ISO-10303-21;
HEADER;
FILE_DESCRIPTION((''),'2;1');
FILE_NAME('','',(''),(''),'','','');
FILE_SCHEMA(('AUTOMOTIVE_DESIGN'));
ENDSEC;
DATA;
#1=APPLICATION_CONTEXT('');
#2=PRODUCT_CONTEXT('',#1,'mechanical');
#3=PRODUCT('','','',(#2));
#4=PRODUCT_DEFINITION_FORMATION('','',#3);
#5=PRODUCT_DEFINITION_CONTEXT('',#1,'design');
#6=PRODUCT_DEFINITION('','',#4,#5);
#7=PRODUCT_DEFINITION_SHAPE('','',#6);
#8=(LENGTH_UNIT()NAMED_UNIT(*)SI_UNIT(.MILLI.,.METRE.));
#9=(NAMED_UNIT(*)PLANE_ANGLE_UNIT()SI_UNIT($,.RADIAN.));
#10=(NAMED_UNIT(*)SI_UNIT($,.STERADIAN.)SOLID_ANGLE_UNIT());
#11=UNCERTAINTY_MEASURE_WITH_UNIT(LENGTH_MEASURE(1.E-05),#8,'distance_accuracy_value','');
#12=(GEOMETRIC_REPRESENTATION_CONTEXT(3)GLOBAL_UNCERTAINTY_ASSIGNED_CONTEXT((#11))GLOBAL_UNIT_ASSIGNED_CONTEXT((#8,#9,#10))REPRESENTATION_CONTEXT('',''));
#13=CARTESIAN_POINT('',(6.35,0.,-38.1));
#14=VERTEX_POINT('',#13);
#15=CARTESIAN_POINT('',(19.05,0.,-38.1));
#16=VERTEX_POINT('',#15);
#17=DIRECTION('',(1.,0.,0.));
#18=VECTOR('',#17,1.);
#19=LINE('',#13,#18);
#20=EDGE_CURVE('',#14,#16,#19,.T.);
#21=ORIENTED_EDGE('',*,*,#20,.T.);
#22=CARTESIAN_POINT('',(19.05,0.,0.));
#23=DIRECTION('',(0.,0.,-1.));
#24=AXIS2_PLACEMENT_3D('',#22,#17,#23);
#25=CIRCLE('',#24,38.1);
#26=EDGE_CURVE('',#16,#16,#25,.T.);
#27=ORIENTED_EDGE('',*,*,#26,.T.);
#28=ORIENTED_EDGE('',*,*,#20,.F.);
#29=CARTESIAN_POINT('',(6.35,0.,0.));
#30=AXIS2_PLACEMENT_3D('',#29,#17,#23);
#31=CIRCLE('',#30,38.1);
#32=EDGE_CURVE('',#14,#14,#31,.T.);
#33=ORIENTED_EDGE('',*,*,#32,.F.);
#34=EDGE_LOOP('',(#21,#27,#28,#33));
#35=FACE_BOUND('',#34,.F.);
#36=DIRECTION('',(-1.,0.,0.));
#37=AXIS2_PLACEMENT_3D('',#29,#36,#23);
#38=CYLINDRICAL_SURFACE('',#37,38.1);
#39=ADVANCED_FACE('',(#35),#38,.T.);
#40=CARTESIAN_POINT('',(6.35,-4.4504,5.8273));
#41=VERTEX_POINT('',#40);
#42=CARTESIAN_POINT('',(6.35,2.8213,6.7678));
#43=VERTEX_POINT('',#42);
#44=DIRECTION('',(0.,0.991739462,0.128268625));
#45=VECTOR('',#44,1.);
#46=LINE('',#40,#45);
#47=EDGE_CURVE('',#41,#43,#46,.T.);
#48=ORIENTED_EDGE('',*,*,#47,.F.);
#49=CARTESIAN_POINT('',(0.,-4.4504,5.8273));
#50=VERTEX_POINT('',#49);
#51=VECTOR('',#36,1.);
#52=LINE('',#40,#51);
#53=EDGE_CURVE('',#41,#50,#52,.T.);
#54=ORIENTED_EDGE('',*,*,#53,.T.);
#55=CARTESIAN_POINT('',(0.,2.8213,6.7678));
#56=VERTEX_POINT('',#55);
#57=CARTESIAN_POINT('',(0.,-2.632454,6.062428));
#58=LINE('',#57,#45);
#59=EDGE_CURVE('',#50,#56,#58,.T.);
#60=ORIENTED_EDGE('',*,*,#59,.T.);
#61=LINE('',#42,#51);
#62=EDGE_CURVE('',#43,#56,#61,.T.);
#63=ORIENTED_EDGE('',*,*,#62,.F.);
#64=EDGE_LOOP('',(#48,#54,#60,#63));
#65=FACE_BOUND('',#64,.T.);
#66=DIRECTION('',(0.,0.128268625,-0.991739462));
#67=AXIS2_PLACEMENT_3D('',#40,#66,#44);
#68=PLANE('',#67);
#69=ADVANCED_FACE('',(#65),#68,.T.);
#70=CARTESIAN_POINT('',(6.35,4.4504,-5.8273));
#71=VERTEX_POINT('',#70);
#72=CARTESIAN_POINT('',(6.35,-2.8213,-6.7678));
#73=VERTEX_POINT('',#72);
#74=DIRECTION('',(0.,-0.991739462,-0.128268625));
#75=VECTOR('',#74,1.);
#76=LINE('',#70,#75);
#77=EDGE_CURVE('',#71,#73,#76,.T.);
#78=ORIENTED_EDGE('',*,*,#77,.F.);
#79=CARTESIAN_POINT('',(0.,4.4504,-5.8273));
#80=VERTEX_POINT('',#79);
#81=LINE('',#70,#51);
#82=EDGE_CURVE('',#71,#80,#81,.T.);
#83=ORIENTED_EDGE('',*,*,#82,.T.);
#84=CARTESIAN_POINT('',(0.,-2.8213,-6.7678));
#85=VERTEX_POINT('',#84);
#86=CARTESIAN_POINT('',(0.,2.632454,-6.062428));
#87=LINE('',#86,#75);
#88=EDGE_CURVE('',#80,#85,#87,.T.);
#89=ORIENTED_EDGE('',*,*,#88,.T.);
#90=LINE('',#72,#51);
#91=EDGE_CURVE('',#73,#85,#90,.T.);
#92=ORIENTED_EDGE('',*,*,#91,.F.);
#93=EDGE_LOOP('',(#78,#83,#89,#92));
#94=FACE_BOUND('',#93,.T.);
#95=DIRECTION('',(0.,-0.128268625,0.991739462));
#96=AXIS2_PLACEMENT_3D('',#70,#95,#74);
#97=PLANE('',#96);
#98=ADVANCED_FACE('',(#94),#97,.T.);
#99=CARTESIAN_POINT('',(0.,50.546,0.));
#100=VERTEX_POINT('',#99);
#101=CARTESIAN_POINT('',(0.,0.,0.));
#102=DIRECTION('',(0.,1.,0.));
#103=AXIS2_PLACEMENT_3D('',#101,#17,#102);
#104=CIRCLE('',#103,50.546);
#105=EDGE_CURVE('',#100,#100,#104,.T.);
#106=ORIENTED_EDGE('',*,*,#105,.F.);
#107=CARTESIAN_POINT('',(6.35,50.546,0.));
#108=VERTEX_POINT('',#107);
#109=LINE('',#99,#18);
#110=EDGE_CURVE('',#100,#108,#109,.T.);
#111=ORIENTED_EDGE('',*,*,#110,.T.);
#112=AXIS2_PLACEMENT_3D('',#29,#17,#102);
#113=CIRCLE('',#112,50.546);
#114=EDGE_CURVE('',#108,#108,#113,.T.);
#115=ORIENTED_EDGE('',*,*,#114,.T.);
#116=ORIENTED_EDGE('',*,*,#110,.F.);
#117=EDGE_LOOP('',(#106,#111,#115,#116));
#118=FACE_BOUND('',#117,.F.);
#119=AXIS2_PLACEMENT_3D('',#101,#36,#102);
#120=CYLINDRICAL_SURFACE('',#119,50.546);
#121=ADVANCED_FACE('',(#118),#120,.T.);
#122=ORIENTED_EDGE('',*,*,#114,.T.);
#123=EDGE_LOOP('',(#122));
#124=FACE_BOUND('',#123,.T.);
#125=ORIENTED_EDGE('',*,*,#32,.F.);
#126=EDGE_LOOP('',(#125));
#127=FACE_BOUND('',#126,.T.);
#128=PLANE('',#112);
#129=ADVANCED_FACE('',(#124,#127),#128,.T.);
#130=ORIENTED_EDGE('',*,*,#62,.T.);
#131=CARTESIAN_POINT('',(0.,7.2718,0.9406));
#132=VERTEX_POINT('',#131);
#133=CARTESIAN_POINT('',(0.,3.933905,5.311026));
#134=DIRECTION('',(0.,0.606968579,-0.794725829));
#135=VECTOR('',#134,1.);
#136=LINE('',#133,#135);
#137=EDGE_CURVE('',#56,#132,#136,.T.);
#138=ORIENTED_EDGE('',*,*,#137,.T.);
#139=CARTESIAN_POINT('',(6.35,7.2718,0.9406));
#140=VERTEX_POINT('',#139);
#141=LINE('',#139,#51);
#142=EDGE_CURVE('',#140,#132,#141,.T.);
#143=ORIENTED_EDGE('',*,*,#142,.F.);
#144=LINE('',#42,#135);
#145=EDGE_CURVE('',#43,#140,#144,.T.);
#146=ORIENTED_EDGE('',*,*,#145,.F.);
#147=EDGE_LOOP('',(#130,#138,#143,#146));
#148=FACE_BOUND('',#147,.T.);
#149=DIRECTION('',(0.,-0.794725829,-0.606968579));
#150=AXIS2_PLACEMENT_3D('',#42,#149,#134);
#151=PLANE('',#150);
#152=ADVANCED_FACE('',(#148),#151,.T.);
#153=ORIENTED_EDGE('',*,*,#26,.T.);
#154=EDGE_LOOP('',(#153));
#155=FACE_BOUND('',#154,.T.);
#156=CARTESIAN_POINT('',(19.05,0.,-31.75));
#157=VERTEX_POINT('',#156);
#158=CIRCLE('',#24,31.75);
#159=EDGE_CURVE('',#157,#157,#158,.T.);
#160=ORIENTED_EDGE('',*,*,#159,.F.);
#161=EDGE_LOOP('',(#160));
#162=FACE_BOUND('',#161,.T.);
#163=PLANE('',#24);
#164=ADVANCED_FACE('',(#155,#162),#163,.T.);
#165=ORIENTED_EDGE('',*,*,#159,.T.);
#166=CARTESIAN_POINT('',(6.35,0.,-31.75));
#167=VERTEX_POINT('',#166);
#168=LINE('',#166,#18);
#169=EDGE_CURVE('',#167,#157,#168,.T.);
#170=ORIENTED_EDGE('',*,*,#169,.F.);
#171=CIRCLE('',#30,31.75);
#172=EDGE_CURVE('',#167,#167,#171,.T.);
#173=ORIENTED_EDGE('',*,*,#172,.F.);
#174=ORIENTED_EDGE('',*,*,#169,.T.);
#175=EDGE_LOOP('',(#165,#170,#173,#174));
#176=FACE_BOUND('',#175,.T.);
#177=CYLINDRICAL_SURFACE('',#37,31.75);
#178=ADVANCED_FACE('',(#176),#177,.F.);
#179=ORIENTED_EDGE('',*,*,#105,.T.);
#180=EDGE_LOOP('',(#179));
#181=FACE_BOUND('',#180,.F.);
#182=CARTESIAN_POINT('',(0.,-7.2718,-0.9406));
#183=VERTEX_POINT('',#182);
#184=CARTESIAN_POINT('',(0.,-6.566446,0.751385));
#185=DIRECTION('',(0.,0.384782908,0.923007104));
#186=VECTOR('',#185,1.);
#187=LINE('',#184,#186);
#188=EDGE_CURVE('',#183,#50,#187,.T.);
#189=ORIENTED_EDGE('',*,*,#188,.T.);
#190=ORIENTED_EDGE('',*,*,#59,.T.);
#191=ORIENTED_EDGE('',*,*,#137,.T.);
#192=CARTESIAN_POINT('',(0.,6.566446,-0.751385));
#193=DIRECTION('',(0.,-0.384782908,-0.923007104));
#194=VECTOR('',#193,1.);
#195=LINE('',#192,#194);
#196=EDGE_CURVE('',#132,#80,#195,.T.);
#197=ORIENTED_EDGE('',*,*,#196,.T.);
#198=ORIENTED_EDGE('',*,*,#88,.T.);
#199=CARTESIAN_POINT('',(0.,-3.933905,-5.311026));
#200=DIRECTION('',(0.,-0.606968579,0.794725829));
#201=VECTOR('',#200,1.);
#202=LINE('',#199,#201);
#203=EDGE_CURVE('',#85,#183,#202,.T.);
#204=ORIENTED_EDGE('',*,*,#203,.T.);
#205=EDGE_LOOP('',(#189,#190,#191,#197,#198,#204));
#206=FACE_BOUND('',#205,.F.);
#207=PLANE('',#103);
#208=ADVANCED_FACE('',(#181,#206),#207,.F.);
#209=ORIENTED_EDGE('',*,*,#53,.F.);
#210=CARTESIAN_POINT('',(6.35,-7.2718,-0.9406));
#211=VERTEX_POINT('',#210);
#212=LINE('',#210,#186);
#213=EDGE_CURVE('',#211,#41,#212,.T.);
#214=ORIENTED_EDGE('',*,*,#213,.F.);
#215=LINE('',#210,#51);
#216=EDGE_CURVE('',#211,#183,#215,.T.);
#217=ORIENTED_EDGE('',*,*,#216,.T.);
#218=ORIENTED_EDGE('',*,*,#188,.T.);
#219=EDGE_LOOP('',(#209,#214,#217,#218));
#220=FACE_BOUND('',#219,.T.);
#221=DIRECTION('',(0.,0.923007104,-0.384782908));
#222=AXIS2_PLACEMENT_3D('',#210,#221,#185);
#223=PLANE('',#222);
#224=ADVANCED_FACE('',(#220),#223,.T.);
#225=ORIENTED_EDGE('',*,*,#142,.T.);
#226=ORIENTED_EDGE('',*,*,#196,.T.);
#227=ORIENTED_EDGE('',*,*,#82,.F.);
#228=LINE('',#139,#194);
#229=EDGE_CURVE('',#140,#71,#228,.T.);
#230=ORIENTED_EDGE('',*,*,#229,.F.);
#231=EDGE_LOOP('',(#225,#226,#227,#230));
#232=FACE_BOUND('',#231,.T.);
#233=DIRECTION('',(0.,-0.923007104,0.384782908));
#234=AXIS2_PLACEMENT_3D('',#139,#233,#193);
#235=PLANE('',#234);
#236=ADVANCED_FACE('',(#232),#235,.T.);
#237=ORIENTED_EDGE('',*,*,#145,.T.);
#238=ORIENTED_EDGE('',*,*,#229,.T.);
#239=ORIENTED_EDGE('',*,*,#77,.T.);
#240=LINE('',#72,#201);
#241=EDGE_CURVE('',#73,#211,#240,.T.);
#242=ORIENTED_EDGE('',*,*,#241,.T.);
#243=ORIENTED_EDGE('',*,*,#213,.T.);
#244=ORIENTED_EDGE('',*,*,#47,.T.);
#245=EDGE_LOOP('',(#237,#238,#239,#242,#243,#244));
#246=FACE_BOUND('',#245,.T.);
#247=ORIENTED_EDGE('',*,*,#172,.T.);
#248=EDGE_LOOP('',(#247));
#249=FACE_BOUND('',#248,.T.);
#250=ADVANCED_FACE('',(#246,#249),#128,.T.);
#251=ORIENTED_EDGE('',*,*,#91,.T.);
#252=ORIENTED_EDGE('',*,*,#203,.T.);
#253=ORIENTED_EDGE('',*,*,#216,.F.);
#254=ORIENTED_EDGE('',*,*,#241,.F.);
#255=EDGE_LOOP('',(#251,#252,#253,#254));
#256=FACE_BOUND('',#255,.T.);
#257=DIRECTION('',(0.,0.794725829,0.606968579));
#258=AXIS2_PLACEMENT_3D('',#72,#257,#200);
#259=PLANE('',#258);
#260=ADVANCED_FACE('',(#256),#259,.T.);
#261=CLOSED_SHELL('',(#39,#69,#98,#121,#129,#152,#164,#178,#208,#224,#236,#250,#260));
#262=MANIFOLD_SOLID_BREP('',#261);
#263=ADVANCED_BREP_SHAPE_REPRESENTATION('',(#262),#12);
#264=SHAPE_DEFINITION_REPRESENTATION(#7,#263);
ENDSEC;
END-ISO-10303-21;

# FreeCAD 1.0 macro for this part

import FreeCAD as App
import Part
import Sketcher

V = App.Vector
Q = App.Units.Quantity

doc = App.newDocument("Part")
body = doc.addObject("PartDesign::Body", "Body")

# Sketch on YZ plane
sketch1 = body.newObject("Sketcher::SketchObject", "Sketch")
sketch1.AttachmentSupport = (doc.getObject("YZ_Plane"), [""])
sketch1.MapMode = "FlatFace"
sketch1.addGeometry(Part.Circle(V(0, 0, 0), V(0, 0, 1), 51), False)
sketch1.addConstraint([
    Sketcher.Constraint("Coincident", 0, 3, -1, 1),
    Sketcher.Constraint("Diameter", 0, Q("3.98 in")),
])
pad1 = body.newObject("PartDesign::Pad", "Pad")
pad1.Profile = sketch1
pad1.Length = Q("0.25 in")

# Sketch on YZ plane
sketch2 = body.newObject("Sketcher::SketchObject", "Sketch001")
sketch2.AttachmentSupport = (doc.getObject("YZ_Plane"), [""])
sketch2.MapMode = "FlatFace"
sketch2.AttachmentOffset = App.Placement(V(0, 0, 0.25 * 25.4), App.Rotation())
sketch2.addGeometry([
    Part.Circle(V(0, 0, 0), V(0, 0, 1), 38),
    Part.Circle(V(0, 0, 0), V(0, 0, 1), 32),
], False)
sketch2.addConstraint([
    Sketcher.Constraint("Coincident", 0, 3, -1, 1),
    Sketcher.Constraint("Coincident", 1, 3, -1, 1),
    Sketcher.Constraint("Diameter", 0, Q("3 in")),
    Sketcher.Constraint("Diameter", 1, Q("2.5 in")),
])
pad2 = body.newObject("PartDesign::Pad", "Pad001")
pad2.Profile = sketch2
pad2.Length = Q("0.5 in")

# Sketch on YZ plane
sketch3 = body.newObject("Sketcher::SketchObject", "Sketch002")
sketch3.AttachmentSupport = (doc.getObject("YZ_Plane"), [""])
sketch3.MapMode = "FlatFace"
sketch3.AttachmentOffset = App.Placement(V(0, 0, 0.25 * 25.4), App.Rotation())
sketch3.addGeometry([
    Part.LineSegment(V(7, 1, 0), V(3, 7, 0)),  # 0
    Part.LineSegment(V(3, 7, 0), V(-4, 6, 0)),  # 1
    Part.LineSegment(V(-4, 6, 0), V(-7, -1, 0)),  # 2
    Part.LineSegment(V(-7, -1, 0), V(-3, -7, 0)),  # 3
    Part.LineSegment(V(-3, -7, 0), V(4, -6, 0)),  # 4
    Part.LineSegment(V(4, -6, 0), V(7, 1, 0)),  # 5
], False)
sketch3.addConstraint([
    Sketcher.Constraint("Coincident", 0, 2, 1, 1),
    Sketcher.Constraint("Coincident", 1, 2, 2, 1),
    Sketcher.Constraint("Coincident", 2, 2, 3, 1),
    Sketcher.Constraint("Coincident", 3, 2, 4, 1),
    Sketcher.Constraint("Coincident", 4, 2, 5, 1),
    Sketcher.Constraint("Coincident", 5, 2, 0, 1),
    Sketcher.Constraint("Symmetric", 0, 2, 3, 2, -1, 1),
    Sketcher.Constraint("Symmetric", 1, 2, 4, 2, -1, 1),
    Sketcher.Constraint("Symmetric", 2, 2, 5, 2, -1, 1),
    Sketcher.Constraint("Equal", 0, 1),
    Sketcher.Constraint("Equal", 1, 2),
    Sketcher.Constraint("Angle", 0, Q("127.3706 deg")),
    Sketcher.Constraint("Angle", 1, Q("-172.6304 deg")),
    Sketcher.Constraint("Angle", 2, Q("-112.6303 deg")),
    Sketcher.Constraint("DistanceX", 2, 2, -1, 1, Q("0.2863 in")),
])
pocket1 = body.newObject("PartDesign::Pocket", "Pocket")
pocket1.Profile = sketch3
pocket1.Length = Q("0.5 in")

doc.recompute()
